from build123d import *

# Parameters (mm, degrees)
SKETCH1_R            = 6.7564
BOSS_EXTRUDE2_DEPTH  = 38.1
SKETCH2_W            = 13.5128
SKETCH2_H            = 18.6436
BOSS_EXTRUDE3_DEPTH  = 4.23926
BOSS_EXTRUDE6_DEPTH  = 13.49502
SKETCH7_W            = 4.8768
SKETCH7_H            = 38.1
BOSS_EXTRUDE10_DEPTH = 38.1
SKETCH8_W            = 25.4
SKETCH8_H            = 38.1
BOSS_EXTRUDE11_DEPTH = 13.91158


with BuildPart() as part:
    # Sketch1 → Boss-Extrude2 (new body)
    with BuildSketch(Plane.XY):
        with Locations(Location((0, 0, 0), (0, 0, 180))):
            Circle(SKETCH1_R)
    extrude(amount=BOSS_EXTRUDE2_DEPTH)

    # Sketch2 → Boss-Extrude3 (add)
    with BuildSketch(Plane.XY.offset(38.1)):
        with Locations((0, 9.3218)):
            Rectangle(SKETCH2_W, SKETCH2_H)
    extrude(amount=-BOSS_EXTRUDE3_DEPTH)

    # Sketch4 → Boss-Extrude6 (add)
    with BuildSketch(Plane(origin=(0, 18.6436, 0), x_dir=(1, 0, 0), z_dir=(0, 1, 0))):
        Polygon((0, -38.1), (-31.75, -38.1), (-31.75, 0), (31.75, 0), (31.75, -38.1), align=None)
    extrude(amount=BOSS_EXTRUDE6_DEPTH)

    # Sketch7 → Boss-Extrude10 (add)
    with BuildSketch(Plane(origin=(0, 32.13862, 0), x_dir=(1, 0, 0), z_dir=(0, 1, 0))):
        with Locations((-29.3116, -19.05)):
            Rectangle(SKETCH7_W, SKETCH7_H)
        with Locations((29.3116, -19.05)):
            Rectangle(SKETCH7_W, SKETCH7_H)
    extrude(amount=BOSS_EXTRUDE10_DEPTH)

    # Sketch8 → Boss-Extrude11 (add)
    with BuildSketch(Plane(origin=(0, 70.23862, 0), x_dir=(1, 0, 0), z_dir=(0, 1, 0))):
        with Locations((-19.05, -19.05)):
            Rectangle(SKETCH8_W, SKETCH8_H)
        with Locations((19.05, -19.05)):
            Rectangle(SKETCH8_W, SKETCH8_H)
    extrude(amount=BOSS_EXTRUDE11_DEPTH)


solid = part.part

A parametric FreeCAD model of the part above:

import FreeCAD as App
import Part
import Sketcher
Q = App.Units.Quantity


def add_polygon(sketch, points):
    """Adds a closed chain of lines whose ends are joined by coincident constraints."""
    first, n = sketch.GeometryCount, len(points)
    for a, b in zip(points, points[1:] + points[:1]):
        sketch.addGeometry(Part.LineSegment(App.Vector(*a, 0), App.Vector(*b, 0)), False)
    for i in range(n):
        sketch.addConstraint(Sketcher.Constraint("Coincident", first + i, 2, first + (i + 1) % n, 1))

doc = App.newDocument("Part")
body = doc.addObject("PartDesign::Body", "Body")

# Sketch on XY plane
sketch1 = doc.addObject("Sketcher::SketchObject", "Sketch")
body.addObject(sketch1)
sketch1.AttachmentSupport = (doc.XY_Plane, [""])
sketch1.MapMode = "FlatFace"
sketch1.addGeometry(Part.Circle(App.Vector(0, 0, 0), App.Vector(0, 0, 1), 6.7564), False)
sketch1.addConstraint([
    Sketcher.Constraint("Coincident", 0, 3, -1, 1),
    Sketcher.Constraint("Diameter", 0, Q("0.532 in")),
])
pad1 = doc.addObject("PartDesign::Pad", "Pad")
body.addObject(pad1)
pad1.Profile = sketch1
pad1.Length = Q("1.5 in")

# Sketch on XY plane
sketch2 = doc.addObject("Sketcher::SketchObject", "Sketch001")
body.addObject(sketch2)
sketch2.AttachmentSupport = (doc.XY_Plane, [""])
sketch2.MapMode = "FlatFace"
sketch2.AttachmentOffset = App.Placement(App.Vector(0, 0, 1.5 * 25.4), App.Rotation())
add_polygon(sketch2, [(-6.7564, 18.6436), (-6.7564, 0), (6.7564, 0), (6.7564, 18.6436)])  # lines 0-3
sketch2.addConstraint([
    Sketcher.Constraint("Vertical", 0),
    Sketcher.Constraint("Horizontal", 1),
    Sketcher.Constraint("Vertical", 2),
    Sketcher.Constraint("Horizontal", 3),
    Sketcher.Constraint("Symmetric", 0, 2, 1, 2, -1, 1),
    Sketcher.Constraint("DistanceX", 1, 1, 1, 2, Q("0.532 in")),
    Sketcher.Constraint("DistanceY", 0, 2, 0, 1, Q("0.734 in")),
])
pad2 = doc.addObject("PartDesign::Pad", "Pad001")
body.addObject(pad2)
pad2.Profile = sketch2
pad2.Length = Q("0.1669 in")
pad2.Reversed = True

# Sketch on XZ plane
sketch3 = doc.addObject("Sketcher::SketchObject", "Sketch002")
body.addObject(sketch3)
sketch3.AttachmentSupport = (doc.XZ_Plane, [""])
sketch3.MapMode = "FlatFace"
sketch3.AttachmentOffset = App.Placement(App.Vector(0, 0, -0.734 * 25.4), App.Rotation())
add_polygon(sketch3, [(-31.75, 38.1), (31.75, 38.1), (31.75, 0), (-31.75, 0)])  # lines 0-3
sketch3.addConstraint([
    Sketcher.Constraint("Horizontal", 0),
    Sketcher.Constraint("Vertical", 1),
    Sketcher.Constraint("Horizontal", 2),
    Sketcher.Constraint("Vertical", 3),
    Sketcher.Constraint("Symmetric", 1, 2, 2, 2, -1, 1),
    Sketcher.Constraint("DistanceX", 0, 1, 0, 2, Q("2.5 in")),
    Sketcher.Constraint("DistanceY", 1, 2, 1, 1, Q("1.5 in")),
])
pad3 = doc.addObject("PartDesign::Pad", "Pad002")
body.addObject(pad3)
pad3.Profile = sketch3
pad3.Length = Q("0.5313 in")
pad3.Reversed = True

# Sketch on XZ plane
sketch4 = doc.addObject("Sketcher::SketchObject", "Sketch003")
body.addObject(sketch4)
sketch4.AttachmentSupport = (doc.XZ_Plane, [""])
sketch4.MapMode = "FlatFace"
sketch4.AttachmentOffset = App.Placement(App.Vector(0, 0, -1.2653 * 25.4), App.Rotation())
add_polygon(sketch4, [(-31.75, 0), (-31.75, 38.1), (-26.8732, 38.1), (-26.8732, 0)])  # lines 0-3
add_polygon(sketch4, [(26.8732, 0), (26.8732, 38.1), (31.75, 38.1), (31.75, 0)])  # lines 4-7
sketch4.addConstraint([
    Sketcher.Constraint("Vertical", 0),
    Sketcher.Constraint("Horizontal", 1),
    Sketcher.Constraint("Vertical", 2),
    Sketcher.Constraint("Horizontal", 3),
    Sketcher.Constraint("Vertical", 4),
    Sketcher.Constraint("Horizontal", 5),
    Sketcher.Constraint("Vertical", 6),
    Sketcher.Constraint("Horizontal", 7),
    Sketcher.Constraint("Symmetric", 3, 2, 6, 2, -1, 1),
    Sketcher.Constraint("Symmetric", 1, 2, 4, 2, -2),
    Sketcher.Constraint("PointOnObject", 2, 2, -1),
    Sketcher.Constraint("DistanceY", 0, 1, 0, 2, Q("1.5 in")),
    Sketcher.Constraint("DistanceX", 0, 2, 5, 2, Q("2.5 in")),
    Sketcher.Constraint("DistanceX", 1, 1, 1, 2, Q("0.192 in")),
])
pad4 = doc.addObject("PartDesign::Pad", "Pad003")
body.addObject(pad4)
pad4.Profile = sketch4
pad4.Length = Q("1.5 in")
pad4.Reversed = True

# Sketch on XZ plane
sketch5 = doc.addObject("Sketcher::SketchObject", "Sketch004")
body.addObject(sketch5)
sketch5.AttachmentSupport = (doc.XZ_Plane, [""])
sketch5.MapMode = "FlatFace"
sketch5.AttachmentOffset = App.Placement(App.Vector(0, 0, -2.7653 * 25.4), App.Rotation())
add_polygon(sketch5, [(-31.75, 0), (-31.75, 38.1), (-6.35, 38.1), (-6.35, 0)])  # lines 0-3
add_polygon(sketch5, [(6.35, 0), (6.35, 38.1), (31.75, 38.1), (31.75, 0)])  # lines 4-7
sketch5.addConstraint([
    Sketcher.Constraint("Vertical", 0),
    Sketcher.Constraint("Horizontal", 1),
    Sketcher.Constraint("Vertical", 2),
    Sketcher.Constraint("Horizontal", 3),
    Sketcher.Constraint("Vertical", 4),
    Sketcher.Constraint("Horizontal", 5),
    Sketcher.Constraint("Vertical", 6),
    Sketcher.Constraint("Horizontal", 7),
    Sketcher.Constraint("Symmetric", 3, 2, 6, 2, -1, 1),
    Sketcher.Constraint("Symmetric", 1, 2, 4, 2, -2),
    Sketcher.Constraint("PointOnObject", 2, 2, -1),
    Sketcher.Constraint("DistanceX", 1, 1, 1, 2, Q("1 in")),
    Sketcher.Constraint("DistanceY", 0, 1, 0, 2, Q("1.5 in")),
    Sketcher.Constraint("DistanceX", 1, 2, 4, 2, Q("0.5 in")),
])
pad5 = doc.addObject("PartDesign::Pad", "Pad004")
body.addObject(pad5)
pad5.Profile = sketch5
pad5.Length = Q("0.5477 in")
pad5.Reversed = True

doc.recompute()
